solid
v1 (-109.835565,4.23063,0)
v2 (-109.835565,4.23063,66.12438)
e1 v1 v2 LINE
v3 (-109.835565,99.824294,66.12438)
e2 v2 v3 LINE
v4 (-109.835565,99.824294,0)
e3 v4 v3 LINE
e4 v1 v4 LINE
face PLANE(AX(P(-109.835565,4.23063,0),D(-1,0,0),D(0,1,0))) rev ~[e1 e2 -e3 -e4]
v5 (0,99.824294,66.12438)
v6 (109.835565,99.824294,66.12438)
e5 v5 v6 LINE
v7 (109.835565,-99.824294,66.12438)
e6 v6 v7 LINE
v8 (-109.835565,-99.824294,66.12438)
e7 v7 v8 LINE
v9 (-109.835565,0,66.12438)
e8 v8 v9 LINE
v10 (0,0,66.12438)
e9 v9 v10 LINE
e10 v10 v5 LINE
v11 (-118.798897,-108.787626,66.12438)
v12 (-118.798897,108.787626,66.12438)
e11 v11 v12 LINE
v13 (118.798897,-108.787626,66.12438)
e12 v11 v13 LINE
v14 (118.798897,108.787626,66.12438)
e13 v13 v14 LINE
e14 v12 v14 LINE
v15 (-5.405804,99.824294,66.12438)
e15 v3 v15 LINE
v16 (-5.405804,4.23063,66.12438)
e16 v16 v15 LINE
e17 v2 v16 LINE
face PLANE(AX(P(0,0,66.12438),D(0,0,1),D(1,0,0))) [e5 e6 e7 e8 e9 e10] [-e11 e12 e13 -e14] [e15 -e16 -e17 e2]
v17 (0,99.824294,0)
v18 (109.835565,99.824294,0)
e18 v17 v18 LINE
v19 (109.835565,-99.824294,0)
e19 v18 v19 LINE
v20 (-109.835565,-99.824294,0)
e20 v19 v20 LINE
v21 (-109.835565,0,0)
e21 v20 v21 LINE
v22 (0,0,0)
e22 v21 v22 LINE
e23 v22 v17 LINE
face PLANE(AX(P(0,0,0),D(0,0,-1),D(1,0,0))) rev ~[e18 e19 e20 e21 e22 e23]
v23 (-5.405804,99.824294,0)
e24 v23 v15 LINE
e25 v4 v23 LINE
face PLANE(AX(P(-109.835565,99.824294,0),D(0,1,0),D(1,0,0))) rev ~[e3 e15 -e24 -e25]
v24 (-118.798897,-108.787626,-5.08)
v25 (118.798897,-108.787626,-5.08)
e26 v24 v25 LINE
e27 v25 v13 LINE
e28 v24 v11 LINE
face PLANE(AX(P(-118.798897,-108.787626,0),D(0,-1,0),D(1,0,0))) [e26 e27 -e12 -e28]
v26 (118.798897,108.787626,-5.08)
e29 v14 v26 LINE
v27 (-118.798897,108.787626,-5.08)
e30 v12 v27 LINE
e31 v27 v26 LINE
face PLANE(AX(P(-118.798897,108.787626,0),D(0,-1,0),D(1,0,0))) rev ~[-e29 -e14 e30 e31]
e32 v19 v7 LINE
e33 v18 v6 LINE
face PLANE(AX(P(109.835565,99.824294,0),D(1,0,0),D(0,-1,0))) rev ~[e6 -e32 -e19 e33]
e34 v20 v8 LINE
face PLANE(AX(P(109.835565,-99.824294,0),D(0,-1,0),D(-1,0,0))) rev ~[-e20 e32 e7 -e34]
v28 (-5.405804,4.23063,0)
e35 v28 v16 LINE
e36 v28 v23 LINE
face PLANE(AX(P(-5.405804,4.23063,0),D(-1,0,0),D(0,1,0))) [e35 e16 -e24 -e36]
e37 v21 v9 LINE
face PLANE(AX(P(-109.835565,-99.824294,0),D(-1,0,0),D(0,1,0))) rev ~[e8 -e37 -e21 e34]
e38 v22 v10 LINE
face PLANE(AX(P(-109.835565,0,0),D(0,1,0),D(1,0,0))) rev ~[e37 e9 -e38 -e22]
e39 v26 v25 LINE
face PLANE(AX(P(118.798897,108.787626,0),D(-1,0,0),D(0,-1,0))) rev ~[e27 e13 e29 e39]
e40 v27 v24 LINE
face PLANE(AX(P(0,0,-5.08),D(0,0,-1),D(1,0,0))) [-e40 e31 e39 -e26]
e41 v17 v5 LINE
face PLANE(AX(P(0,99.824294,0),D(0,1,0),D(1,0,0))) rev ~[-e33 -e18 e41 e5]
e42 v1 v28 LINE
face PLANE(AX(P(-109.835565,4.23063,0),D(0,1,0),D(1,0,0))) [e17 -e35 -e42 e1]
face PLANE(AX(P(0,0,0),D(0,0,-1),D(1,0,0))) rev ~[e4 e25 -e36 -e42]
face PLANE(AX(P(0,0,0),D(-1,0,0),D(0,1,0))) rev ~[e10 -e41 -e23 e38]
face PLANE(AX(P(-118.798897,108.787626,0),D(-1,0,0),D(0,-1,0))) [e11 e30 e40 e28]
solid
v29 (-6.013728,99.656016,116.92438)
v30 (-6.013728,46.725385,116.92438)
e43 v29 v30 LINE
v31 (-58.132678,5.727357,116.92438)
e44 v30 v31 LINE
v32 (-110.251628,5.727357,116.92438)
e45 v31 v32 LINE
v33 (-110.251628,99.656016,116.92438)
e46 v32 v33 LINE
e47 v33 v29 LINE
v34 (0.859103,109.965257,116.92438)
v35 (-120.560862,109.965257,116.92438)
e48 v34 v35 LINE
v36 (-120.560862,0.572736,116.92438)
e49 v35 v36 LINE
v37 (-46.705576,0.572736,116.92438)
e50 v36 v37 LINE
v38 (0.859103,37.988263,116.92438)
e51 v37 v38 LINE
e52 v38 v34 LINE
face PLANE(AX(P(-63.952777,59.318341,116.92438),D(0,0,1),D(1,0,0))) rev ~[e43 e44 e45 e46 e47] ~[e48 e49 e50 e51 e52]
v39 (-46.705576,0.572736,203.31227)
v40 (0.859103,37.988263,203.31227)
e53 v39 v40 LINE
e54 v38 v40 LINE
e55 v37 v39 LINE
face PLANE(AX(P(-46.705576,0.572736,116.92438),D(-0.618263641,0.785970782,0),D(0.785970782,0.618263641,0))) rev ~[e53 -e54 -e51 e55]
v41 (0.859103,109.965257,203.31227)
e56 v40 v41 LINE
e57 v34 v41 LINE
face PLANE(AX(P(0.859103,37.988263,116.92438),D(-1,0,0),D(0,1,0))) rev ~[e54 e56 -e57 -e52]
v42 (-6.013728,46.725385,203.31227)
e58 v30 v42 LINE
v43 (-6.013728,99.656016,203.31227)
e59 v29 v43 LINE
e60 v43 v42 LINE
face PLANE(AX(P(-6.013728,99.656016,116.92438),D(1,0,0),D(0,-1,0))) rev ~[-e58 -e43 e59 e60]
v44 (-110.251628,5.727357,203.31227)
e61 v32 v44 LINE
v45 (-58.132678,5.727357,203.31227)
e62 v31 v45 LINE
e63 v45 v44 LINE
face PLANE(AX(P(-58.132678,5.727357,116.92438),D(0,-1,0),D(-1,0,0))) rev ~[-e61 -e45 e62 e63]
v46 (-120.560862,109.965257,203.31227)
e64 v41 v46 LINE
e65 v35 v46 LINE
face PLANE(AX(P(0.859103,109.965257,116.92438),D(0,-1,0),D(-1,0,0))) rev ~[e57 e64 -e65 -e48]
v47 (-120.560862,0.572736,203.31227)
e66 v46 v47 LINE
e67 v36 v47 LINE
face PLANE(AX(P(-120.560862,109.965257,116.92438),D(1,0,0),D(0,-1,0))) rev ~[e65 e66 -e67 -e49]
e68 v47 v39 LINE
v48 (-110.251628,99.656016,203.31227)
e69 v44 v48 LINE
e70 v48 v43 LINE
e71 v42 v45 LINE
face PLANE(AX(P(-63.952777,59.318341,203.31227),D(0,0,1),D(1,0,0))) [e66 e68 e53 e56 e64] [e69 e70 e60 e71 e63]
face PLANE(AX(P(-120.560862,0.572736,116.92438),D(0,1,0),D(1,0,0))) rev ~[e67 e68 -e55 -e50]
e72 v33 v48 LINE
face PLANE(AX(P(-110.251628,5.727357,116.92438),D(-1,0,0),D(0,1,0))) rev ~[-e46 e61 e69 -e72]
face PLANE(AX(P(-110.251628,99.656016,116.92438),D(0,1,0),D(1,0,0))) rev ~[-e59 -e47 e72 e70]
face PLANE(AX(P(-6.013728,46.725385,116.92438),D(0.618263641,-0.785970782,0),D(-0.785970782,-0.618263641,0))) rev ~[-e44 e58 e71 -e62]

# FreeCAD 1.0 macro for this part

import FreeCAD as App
import Part
import Sketcher
from FreeCAD import Vector
Q = App.Units.Quantity


def add_polygon(sketch, points):
    """Adds a closed chain of lines whose ends are joined by coincident constraints."""
    first, n = sketch.GeometryCount, len(points)
    for a, b in zip(points, points[1:] + points[:1]):
        sketch.addGeometry(Part.LineSegment(App.Vector(*a, 0), App.Vector(*b, 0)), False)
    for i in range(n):
        sketch.addConstraint(Sketcher.Constraint("Coincident", first + i, 2, first + (i + 1) % n, 1))

doc = App.newDocument("Part")
body = doc.addObject("PartDesign::Body", "Body")

# Sketch on XY plane
sketch1 = doc.addObject("Sketcher::SketchObject", "Sketch")
body.addObject(sketch1)
sketch1.AttachmentSupport = (doc.XY_Plane, [""])
sketch1.MapMode = "FlatFace"
add_polygon(sketch1, [(-119, 109), (-119, -109), (119, -109), (119, 109)])  # lines 0-3
add_polygon(sketch1, [(110, 100), (110, -100), (-110, -100), (-110, 0), (0, 0), (0, 100)])  # lines 4-9
add_polygon(sketch1, [(-5, 4), (-110, 4), (-110, 100), (-5, 100)])  # lines 10-13
sketch1.addConstraint(Sketcher.Constraint("Vertical", 0))
sketch1.addConstraint(Sketcher.Constraint("Horizontal", 1))
sketch1.addConstraint(Sketcher.Constraint("Vertical", 2))
sketch1.addConstraint(Sketcher.Constraint("Horizontal", 3))
sketch1.addConstraint(Sketcher.Constraint("Vertical", 4))
sketch1.addConstraint(Sketcher.Constraint("Horizontal", 5))
sketch1.addConstraint(Sketcher.Constraint("Vertical", 6))
sketch1.addConstraint(Sketcher.Constraint("Horizontal", 7))
sketch1.addConstraint(Sketcher.Constraint("Vertical", 8))
sketch1.addConstraint(Sketcher.Constraint("Horizontal", 9))
sketch1.addConstraint(Sketcher.Constraint("Horizontal", 10))
sketch1.addConstraint(Sketcher.Constraint("Vertical", 11))
sketch1.addConstraint(Sketcher.Constraint("Horizontal", 12))
sketch1.addConstraint(Sketcher.Constraint("Vertical", 13))
sketch1.addConstraint(Sketcher.Constraint("Coincident", 7, 2, -1, 1))
sketch1.addConstraint(Sketcher.Constraint("Symmetric", 0, 2, 2, 2, -1, 1))
sketch1.addConstraint(Sketcher.Constraint("Symmetric", 5, 2, 9, 2, -1, 1))
sketch1.addConstraint(Sketcher.Constraint("Symmetric", 4, 2, 11, 2, -1, 1))
sketch1.addConstraint(Sketcher.Constraint("DistanceX", 5, 2, 5, 1, 219.67113))
sketch1.addConstraint(Sketcher.Constraint("DistanceX", 10, 2, 10, 1, 104.429761))
sketch1.addConstraint(Sketcher.Constraint("DistanceY", 4, 2, 4, 1, 199.648589))
sketch1.addConstraint(Sketcher.Constraint("DistanceX", 1, 1, 1, 2, 237.597793))
sketch1.addConstraint(Sketcher.Constraint("DistanceY", 0, 2, 0, 1, 217.575252))
sketch1.addConstraint(Sketcher.Constraint("DistanceY", 11, 1, 11, 2, 95.593664))
pad1 = doc.addObject("PartDesign::Pad", "Pad")
body.addObject(pad1)
pad1.Profile = sketch1
pad1.Length = 66.12438

# Sketch on XY plane
sketch2 = doc.addObject("Sketcher::SketchObject", "Sketch001")
body.addObject(sketch2)
sketch2.AttachmentSupport = (doc.XY_Plane, [""])
sketch2.MapMode = "FlatFace"
add_polygon(sketch2, [(-119, -109), (-119, 109), (119, 109), (119, -109)])  # lines 0-3
sketch2.addConstraint(Sketcher.Constraint("Vertical", 0))
sketch2.addConstraint(Sketcher.Constraint("Horizontal", 1))
sketch2.addConstraint(Sketcher.Constraint("Vertical", 2))
sketch2.addConstraint(Sketcher.Constraint("Horizontal", 3))
sketch2.addConstraint(Sketcher.Constraint("Symmetric", 0, 2, 2, 2, -1, 1))
sketch2.addConstraint(Sketcher.Constraint("DistanceX", 1, 1, 1, 2, 237.597793))
sketch2.addConstraint(Sketcher.Constraint("DistanceY", 0, 1, 0, 2, 217.575252))
pad2 = doc.addObject("PartDesign::Pad", "Pad001")
body.addObject(pad2)
pad2.Profile = sketch2
pad2.Length = Q("0.2 in")
pad2.Reversed = True
body2 = doc.addObject("PartDesign::Body", "Body001")

# Sketch on XY plane
sketch3 = doc.addObject("Sketcher::SketchObject", "Sketch002")
body2.addObject(sketch3)
sketch3.AttachmentSupport = (doc.getObject("XY_Plane001"), [""])
sketch3.MapMode = "FlatFace"
sketch3.AttachmentOffset = App.Placement(Vector(0, 0, 116.92438), App.Rotation())
add_polygon(sketch3, [(1, 110), (-121, 110), (-121, 1), (-47, 1), (1, 38)])  # lines 0-4
add_polygon(sketch3, [(-58, 6), (-110, 6), (-110, 100), (-6, 100), (-6, 47)])  # lines 5-9
sketch3.addConstraint(Sketcher.Constraint("Horizontal", 0))
sketch3.addConstraint(Sketcher.Constraint("Vertical", 1))
sketch3.addConstraint(Sketcher.Constraint("Horizontal", 2))
sketch3.addConstraint(Sketcher.Constraint("Vertical", 4))
sketch3.addConstraint(Sketcher.Constraint("Horizontal", 5))
sketch3.addConstraint(Sketcher.Constraint("Vertical", 6))
sketch3.addConstraint(Sketcher.Constraint("Horizontal", 7))
sketch3.addConstraint(Sketcher.Constraint("Vertical", 8))
sketch3.addConstraint(Sketcher.Constraint("Parallel", 3, 9))
sketch3.addConstraint(Sketcher.Constraint("DistanceX", 7, 1, 7, 2, 104.2379))
sketch3.addConstraint(Sketcher.Constraint("DistanceX", 5, 2, 5, 1, 52.11895))
sketch3.addConstraint(Sketcher.Constraint("DistanceY", 1, 2, 1, 1, 109.392522))
sketch3.addConstraint(Sketcher.Constraint("DistanceY", 6, 1, 6, 2, 93.928658))
sketch3.addConstraint(Sketcher.Constraint("DistanceY", 8, 2, 8, 1, 52.930631))
sketch3.addConstraint(Sketcher.Constraint("DistanceY", 5, 2, 0, 2, 104.2379))
sketch3.addConstraint(Sketcher.Constraint("Distance", 3, 60.517108))
sketch3.addConstraint(Sketcher.Constraint("DistanceX", 0, 2, 0, 1, 121.419966))
sketch3.addConstraint(Sketcher.Constraint("DistanceX", 5, 2, 3, 2, 111.110731))
sketch3.addConstraint(Sketcher.Constraint("DistanceX", 0, 2, -1, 1, 120.560862))
sketch3.addConstraint(Sketcher.Constraint("DistanceY", -1, 1, 0, 2, 109.965257))
pad3 = doc.addObject("PartDesign::Pad", "Pad002")
body2.addObject(pad3)
pad3.Profile = sketch3
pad3.Length = 86.38789

doc.recompute()
